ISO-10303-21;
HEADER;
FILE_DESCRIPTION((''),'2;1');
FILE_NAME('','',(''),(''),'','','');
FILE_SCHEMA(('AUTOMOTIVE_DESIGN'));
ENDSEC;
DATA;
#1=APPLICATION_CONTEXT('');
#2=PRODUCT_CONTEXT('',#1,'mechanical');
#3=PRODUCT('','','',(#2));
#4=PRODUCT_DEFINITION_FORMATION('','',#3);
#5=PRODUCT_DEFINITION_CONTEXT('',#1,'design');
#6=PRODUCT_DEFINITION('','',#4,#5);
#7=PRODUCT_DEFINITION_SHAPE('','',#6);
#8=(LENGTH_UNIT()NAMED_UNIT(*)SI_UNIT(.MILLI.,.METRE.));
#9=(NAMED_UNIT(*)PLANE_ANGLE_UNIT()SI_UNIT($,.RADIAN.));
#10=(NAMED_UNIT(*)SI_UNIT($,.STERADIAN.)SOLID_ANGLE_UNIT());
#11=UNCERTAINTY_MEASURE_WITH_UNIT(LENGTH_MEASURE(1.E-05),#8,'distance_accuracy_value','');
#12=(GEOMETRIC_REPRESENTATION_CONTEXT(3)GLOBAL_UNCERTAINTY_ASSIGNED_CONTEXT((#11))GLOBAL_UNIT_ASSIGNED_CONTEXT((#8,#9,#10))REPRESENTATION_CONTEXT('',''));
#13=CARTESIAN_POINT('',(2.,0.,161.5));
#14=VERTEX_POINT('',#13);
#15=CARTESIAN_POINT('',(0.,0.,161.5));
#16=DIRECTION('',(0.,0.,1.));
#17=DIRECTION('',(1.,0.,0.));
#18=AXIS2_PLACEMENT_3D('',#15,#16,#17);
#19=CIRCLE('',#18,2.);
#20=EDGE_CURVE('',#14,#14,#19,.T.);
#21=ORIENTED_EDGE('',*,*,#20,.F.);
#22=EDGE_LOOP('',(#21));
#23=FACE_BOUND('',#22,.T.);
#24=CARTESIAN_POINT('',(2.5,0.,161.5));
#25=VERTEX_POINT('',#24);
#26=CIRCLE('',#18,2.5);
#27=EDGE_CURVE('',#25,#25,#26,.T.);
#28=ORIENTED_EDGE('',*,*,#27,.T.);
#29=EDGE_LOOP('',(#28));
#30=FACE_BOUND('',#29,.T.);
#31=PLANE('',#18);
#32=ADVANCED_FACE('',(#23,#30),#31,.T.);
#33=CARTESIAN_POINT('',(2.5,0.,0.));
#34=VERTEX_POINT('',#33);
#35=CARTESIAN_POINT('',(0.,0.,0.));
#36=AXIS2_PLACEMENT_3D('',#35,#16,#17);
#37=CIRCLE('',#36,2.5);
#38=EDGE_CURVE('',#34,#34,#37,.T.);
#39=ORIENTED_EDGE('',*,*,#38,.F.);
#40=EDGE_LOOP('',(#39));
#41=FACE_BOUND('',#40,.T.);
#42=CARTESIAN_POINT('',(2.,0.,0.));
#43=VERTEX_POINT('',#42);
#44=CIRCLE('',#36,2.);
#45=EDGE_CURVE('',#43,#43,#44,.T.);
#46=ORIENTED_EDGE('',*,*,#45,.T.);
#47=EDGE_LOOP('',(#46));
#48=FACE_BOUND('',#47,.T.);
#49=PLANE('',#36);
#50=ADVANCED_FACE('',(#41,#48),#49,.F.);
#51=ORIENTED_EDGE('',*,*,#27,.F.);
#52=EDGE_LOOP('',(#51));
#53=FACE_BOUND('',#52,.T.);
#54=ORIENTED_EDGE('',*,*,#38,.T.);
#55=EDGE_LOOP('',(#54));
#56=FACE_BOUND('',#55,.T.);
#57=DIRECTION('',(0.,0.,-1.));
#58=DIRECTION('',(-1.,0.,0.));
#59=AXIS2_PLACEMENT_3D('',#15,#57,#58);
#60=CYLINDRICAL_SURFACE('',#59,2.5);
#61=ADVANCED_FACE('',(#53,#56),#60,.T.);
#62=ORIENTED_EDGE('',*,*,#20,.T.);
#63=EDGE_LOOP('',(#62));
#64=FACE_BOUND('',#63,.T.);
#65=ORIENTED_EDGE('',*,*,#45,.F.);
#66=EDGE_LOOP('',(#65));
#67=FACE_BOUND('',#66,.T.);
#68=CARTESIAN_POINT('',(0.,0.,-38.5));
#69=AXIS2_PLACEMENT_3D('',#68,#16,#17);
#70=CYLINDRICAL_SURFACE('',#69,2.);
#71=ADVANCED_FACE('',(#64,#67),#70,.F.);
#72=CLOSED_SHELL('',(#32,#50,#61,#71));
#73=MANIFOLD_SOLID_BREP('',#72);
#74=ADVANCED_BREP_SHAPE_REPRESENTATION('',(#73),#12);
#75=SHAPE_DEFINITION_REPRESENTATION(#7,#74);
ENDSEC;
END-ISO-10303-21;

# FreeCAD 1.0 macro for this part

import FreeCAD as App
import Part
import Sketcher
Q = App.Units.Quantity

doc = App.newDocument("Part")
body = doc.addObject("PartDesign::Body", "Body")

# Sketch on XY plane
sketch1 = body.newObject("Sketcher::SketchObject", "Sketch")
sketch1.AttachmentSupport = (doc.getObject("XY_Plane"), [""])
sketch1.MapMode = "FlatFace"
sketch1.addGeometry(Part.Circle(App.Vector(0, 0, 0), App.Vector(0, 0, 1), 2.5), False)
sketch1.addConstraint(Sketcher.Constraint("Coincident", 0, 3, -1, 1))
sketch1.addConstraint(Sketcher.Constraint("Diameter", 0, Q("5 mm")))
pad1 = body.newObject("PartDesign::Pad", "Pad")
pad1.Profile = sketch1
pad1.Length = 161.5

# Sketch on XY plane
sketch2 = body.newObject("Sketcher::SketchObject", "Sketch001")
sketch2.AttachmentSupport = (doc.getObject("XY_Plane"), [""])
sketch2.MapMode = "FlatFace"
sketch2.AttachmentOffset = App.Placement(App.Vector(0, 0, 161.5), App.Rotation())
sketch2.addGeometry(Part.Circle(App.Vector(0, 0, 0), App.Vector(0, 0, 1), 2), False)
sketch2.addConstraint(Sketcher.Constraint("Coincident", 0, 3, -1, 1))
sketch2.addConstraint(Sketcher.Constraint("Diameter", 0, Q("4 mm")))
pocket1 = body.newObject("PartDesign::Pocket", "Pocket")
pocket1.Profile = sketch2
pocket1.Length = 200

doc.recompute()
